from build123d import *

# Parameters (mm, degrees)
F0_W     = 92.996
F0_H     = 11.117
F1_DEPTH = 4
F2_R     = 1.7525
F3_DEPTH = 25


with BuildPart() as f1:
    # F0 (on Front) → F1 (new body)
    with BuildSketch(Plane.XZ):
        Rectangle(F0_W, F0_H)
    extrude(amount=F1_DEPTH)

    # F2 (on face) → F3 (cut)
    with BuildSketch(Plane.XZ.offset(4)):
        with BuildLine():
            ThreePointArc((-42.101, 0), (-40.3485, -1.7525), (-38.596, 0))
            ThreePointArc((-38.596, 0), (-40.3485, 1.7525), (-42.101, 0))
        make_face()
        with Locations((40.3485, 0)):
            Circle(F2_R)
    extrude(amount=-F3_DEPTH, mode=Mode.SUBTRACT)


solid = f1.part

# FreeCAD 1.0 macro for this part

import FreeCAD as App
import Part
import Sketcher

V = App.Vector


def add_polygon(sketch, points):
    """Adds a closed chain of lines whose ends are joined by coincident constraints."""
    first, n = sketch.GeometryCount, len(points)
    for a, b in zip(points, points[1:] + points[:1]):
        sketch.addGeometry(Part.LineSegment(App.Vector(*a, 0), App.Vector(*b, 0)), False)
    for i in range(n):
        sketch.addConstraint(Sketcher.Constraint("Coincident", first + i, 2, first + (i + 1) % n, 1))

doc = App.newDocument("Part")
body = doc.addObject("PartDesign::Body", "Body")

# Sketch on XZ plane
sketch1 = doc.addObject("Sketcher::SketchObject", "Sketch")
body.addObject(sketch1)
sketch1.AttachmentSupport = (doc.XZ_Plane, [""])
sketch1.MapMode = "FlatFace"
add_polygon(sketch1, [(-46, 6), (-46, -6), (46, -6), (46, 6)])  # lines 0-3
sketch1.addConstraint(Sketcher.Constraint("Vertical", 0))
sketch1.addConstraint(Sketcher.Constraint("Horizontal", 1))
sketch1.addConstraint(Sketcher.Constraint("Vertical", 2))
sketch1.addConstraint(Sketcher.Constraint("Horizontal", 3))
sketch1.addConstraint(Sketcher.Constraint("Symmetric", 0, 2, 2, 2, -1, 1))
sketch1.addConstraint(Sketcher.Constraint("DistanceX", 1, 1, 1, 2, 92.996))
sketch1.addConstraint(Sketcher.Constraint("DistanceY", 0, 2, 0, 1, 11.117))
pad1 = doc.addObject("PartDesign::Pad", "Pad")
body.addObject(pad1)
pad1.Profile = sketch1
pad1.Length = 4

# Sketch on XZ plane
sketch2 = doc.addObject("Sketcher::SketchObject", "Sketch001")
body.addObject(sketch2)
sketch2.AttachmentSupport = (doc.XZ_Plane, [""])
sketch2.MapMode = "FlatFace"
sketch2.AttachmentOffset = App.Placement(V(0, 0, 4), App.Rotation())
sketch2.addGeometry(Part.Circle(V(-40.3, 0, 0), V(0, 0, 1), 1.8), False)
sketch2.addGeometry(Part.Circle(V(40.3, 0, 0), V(0, 0, 1), 1.8), False)
sketch2.addConstraint(Sketcher.Constraint("Equal", 0, 1))
sketch2.addConstraint(Sketcher.Constraint("Symmetric", 0, 3, 1, 3, -1, 1))
sketch2.addConstraint(Sketcher.Constraint("PointOnObject", 0, 3, -1))
sketch2.addConstraint(Sketcher.Constraint("Diameter", 0, 3.505))
sketch2.addConstraint(Sketcher.Constraint("DistanceX", 0, 3, 1, 3, 80.697))
pocket1 = doc.addObject("PartDesign::Pocket", "Pocket")
body.addObject(pocket1)
pocket1.Profile = sketch2
pocket1.Length = 25

doc.recompute()
